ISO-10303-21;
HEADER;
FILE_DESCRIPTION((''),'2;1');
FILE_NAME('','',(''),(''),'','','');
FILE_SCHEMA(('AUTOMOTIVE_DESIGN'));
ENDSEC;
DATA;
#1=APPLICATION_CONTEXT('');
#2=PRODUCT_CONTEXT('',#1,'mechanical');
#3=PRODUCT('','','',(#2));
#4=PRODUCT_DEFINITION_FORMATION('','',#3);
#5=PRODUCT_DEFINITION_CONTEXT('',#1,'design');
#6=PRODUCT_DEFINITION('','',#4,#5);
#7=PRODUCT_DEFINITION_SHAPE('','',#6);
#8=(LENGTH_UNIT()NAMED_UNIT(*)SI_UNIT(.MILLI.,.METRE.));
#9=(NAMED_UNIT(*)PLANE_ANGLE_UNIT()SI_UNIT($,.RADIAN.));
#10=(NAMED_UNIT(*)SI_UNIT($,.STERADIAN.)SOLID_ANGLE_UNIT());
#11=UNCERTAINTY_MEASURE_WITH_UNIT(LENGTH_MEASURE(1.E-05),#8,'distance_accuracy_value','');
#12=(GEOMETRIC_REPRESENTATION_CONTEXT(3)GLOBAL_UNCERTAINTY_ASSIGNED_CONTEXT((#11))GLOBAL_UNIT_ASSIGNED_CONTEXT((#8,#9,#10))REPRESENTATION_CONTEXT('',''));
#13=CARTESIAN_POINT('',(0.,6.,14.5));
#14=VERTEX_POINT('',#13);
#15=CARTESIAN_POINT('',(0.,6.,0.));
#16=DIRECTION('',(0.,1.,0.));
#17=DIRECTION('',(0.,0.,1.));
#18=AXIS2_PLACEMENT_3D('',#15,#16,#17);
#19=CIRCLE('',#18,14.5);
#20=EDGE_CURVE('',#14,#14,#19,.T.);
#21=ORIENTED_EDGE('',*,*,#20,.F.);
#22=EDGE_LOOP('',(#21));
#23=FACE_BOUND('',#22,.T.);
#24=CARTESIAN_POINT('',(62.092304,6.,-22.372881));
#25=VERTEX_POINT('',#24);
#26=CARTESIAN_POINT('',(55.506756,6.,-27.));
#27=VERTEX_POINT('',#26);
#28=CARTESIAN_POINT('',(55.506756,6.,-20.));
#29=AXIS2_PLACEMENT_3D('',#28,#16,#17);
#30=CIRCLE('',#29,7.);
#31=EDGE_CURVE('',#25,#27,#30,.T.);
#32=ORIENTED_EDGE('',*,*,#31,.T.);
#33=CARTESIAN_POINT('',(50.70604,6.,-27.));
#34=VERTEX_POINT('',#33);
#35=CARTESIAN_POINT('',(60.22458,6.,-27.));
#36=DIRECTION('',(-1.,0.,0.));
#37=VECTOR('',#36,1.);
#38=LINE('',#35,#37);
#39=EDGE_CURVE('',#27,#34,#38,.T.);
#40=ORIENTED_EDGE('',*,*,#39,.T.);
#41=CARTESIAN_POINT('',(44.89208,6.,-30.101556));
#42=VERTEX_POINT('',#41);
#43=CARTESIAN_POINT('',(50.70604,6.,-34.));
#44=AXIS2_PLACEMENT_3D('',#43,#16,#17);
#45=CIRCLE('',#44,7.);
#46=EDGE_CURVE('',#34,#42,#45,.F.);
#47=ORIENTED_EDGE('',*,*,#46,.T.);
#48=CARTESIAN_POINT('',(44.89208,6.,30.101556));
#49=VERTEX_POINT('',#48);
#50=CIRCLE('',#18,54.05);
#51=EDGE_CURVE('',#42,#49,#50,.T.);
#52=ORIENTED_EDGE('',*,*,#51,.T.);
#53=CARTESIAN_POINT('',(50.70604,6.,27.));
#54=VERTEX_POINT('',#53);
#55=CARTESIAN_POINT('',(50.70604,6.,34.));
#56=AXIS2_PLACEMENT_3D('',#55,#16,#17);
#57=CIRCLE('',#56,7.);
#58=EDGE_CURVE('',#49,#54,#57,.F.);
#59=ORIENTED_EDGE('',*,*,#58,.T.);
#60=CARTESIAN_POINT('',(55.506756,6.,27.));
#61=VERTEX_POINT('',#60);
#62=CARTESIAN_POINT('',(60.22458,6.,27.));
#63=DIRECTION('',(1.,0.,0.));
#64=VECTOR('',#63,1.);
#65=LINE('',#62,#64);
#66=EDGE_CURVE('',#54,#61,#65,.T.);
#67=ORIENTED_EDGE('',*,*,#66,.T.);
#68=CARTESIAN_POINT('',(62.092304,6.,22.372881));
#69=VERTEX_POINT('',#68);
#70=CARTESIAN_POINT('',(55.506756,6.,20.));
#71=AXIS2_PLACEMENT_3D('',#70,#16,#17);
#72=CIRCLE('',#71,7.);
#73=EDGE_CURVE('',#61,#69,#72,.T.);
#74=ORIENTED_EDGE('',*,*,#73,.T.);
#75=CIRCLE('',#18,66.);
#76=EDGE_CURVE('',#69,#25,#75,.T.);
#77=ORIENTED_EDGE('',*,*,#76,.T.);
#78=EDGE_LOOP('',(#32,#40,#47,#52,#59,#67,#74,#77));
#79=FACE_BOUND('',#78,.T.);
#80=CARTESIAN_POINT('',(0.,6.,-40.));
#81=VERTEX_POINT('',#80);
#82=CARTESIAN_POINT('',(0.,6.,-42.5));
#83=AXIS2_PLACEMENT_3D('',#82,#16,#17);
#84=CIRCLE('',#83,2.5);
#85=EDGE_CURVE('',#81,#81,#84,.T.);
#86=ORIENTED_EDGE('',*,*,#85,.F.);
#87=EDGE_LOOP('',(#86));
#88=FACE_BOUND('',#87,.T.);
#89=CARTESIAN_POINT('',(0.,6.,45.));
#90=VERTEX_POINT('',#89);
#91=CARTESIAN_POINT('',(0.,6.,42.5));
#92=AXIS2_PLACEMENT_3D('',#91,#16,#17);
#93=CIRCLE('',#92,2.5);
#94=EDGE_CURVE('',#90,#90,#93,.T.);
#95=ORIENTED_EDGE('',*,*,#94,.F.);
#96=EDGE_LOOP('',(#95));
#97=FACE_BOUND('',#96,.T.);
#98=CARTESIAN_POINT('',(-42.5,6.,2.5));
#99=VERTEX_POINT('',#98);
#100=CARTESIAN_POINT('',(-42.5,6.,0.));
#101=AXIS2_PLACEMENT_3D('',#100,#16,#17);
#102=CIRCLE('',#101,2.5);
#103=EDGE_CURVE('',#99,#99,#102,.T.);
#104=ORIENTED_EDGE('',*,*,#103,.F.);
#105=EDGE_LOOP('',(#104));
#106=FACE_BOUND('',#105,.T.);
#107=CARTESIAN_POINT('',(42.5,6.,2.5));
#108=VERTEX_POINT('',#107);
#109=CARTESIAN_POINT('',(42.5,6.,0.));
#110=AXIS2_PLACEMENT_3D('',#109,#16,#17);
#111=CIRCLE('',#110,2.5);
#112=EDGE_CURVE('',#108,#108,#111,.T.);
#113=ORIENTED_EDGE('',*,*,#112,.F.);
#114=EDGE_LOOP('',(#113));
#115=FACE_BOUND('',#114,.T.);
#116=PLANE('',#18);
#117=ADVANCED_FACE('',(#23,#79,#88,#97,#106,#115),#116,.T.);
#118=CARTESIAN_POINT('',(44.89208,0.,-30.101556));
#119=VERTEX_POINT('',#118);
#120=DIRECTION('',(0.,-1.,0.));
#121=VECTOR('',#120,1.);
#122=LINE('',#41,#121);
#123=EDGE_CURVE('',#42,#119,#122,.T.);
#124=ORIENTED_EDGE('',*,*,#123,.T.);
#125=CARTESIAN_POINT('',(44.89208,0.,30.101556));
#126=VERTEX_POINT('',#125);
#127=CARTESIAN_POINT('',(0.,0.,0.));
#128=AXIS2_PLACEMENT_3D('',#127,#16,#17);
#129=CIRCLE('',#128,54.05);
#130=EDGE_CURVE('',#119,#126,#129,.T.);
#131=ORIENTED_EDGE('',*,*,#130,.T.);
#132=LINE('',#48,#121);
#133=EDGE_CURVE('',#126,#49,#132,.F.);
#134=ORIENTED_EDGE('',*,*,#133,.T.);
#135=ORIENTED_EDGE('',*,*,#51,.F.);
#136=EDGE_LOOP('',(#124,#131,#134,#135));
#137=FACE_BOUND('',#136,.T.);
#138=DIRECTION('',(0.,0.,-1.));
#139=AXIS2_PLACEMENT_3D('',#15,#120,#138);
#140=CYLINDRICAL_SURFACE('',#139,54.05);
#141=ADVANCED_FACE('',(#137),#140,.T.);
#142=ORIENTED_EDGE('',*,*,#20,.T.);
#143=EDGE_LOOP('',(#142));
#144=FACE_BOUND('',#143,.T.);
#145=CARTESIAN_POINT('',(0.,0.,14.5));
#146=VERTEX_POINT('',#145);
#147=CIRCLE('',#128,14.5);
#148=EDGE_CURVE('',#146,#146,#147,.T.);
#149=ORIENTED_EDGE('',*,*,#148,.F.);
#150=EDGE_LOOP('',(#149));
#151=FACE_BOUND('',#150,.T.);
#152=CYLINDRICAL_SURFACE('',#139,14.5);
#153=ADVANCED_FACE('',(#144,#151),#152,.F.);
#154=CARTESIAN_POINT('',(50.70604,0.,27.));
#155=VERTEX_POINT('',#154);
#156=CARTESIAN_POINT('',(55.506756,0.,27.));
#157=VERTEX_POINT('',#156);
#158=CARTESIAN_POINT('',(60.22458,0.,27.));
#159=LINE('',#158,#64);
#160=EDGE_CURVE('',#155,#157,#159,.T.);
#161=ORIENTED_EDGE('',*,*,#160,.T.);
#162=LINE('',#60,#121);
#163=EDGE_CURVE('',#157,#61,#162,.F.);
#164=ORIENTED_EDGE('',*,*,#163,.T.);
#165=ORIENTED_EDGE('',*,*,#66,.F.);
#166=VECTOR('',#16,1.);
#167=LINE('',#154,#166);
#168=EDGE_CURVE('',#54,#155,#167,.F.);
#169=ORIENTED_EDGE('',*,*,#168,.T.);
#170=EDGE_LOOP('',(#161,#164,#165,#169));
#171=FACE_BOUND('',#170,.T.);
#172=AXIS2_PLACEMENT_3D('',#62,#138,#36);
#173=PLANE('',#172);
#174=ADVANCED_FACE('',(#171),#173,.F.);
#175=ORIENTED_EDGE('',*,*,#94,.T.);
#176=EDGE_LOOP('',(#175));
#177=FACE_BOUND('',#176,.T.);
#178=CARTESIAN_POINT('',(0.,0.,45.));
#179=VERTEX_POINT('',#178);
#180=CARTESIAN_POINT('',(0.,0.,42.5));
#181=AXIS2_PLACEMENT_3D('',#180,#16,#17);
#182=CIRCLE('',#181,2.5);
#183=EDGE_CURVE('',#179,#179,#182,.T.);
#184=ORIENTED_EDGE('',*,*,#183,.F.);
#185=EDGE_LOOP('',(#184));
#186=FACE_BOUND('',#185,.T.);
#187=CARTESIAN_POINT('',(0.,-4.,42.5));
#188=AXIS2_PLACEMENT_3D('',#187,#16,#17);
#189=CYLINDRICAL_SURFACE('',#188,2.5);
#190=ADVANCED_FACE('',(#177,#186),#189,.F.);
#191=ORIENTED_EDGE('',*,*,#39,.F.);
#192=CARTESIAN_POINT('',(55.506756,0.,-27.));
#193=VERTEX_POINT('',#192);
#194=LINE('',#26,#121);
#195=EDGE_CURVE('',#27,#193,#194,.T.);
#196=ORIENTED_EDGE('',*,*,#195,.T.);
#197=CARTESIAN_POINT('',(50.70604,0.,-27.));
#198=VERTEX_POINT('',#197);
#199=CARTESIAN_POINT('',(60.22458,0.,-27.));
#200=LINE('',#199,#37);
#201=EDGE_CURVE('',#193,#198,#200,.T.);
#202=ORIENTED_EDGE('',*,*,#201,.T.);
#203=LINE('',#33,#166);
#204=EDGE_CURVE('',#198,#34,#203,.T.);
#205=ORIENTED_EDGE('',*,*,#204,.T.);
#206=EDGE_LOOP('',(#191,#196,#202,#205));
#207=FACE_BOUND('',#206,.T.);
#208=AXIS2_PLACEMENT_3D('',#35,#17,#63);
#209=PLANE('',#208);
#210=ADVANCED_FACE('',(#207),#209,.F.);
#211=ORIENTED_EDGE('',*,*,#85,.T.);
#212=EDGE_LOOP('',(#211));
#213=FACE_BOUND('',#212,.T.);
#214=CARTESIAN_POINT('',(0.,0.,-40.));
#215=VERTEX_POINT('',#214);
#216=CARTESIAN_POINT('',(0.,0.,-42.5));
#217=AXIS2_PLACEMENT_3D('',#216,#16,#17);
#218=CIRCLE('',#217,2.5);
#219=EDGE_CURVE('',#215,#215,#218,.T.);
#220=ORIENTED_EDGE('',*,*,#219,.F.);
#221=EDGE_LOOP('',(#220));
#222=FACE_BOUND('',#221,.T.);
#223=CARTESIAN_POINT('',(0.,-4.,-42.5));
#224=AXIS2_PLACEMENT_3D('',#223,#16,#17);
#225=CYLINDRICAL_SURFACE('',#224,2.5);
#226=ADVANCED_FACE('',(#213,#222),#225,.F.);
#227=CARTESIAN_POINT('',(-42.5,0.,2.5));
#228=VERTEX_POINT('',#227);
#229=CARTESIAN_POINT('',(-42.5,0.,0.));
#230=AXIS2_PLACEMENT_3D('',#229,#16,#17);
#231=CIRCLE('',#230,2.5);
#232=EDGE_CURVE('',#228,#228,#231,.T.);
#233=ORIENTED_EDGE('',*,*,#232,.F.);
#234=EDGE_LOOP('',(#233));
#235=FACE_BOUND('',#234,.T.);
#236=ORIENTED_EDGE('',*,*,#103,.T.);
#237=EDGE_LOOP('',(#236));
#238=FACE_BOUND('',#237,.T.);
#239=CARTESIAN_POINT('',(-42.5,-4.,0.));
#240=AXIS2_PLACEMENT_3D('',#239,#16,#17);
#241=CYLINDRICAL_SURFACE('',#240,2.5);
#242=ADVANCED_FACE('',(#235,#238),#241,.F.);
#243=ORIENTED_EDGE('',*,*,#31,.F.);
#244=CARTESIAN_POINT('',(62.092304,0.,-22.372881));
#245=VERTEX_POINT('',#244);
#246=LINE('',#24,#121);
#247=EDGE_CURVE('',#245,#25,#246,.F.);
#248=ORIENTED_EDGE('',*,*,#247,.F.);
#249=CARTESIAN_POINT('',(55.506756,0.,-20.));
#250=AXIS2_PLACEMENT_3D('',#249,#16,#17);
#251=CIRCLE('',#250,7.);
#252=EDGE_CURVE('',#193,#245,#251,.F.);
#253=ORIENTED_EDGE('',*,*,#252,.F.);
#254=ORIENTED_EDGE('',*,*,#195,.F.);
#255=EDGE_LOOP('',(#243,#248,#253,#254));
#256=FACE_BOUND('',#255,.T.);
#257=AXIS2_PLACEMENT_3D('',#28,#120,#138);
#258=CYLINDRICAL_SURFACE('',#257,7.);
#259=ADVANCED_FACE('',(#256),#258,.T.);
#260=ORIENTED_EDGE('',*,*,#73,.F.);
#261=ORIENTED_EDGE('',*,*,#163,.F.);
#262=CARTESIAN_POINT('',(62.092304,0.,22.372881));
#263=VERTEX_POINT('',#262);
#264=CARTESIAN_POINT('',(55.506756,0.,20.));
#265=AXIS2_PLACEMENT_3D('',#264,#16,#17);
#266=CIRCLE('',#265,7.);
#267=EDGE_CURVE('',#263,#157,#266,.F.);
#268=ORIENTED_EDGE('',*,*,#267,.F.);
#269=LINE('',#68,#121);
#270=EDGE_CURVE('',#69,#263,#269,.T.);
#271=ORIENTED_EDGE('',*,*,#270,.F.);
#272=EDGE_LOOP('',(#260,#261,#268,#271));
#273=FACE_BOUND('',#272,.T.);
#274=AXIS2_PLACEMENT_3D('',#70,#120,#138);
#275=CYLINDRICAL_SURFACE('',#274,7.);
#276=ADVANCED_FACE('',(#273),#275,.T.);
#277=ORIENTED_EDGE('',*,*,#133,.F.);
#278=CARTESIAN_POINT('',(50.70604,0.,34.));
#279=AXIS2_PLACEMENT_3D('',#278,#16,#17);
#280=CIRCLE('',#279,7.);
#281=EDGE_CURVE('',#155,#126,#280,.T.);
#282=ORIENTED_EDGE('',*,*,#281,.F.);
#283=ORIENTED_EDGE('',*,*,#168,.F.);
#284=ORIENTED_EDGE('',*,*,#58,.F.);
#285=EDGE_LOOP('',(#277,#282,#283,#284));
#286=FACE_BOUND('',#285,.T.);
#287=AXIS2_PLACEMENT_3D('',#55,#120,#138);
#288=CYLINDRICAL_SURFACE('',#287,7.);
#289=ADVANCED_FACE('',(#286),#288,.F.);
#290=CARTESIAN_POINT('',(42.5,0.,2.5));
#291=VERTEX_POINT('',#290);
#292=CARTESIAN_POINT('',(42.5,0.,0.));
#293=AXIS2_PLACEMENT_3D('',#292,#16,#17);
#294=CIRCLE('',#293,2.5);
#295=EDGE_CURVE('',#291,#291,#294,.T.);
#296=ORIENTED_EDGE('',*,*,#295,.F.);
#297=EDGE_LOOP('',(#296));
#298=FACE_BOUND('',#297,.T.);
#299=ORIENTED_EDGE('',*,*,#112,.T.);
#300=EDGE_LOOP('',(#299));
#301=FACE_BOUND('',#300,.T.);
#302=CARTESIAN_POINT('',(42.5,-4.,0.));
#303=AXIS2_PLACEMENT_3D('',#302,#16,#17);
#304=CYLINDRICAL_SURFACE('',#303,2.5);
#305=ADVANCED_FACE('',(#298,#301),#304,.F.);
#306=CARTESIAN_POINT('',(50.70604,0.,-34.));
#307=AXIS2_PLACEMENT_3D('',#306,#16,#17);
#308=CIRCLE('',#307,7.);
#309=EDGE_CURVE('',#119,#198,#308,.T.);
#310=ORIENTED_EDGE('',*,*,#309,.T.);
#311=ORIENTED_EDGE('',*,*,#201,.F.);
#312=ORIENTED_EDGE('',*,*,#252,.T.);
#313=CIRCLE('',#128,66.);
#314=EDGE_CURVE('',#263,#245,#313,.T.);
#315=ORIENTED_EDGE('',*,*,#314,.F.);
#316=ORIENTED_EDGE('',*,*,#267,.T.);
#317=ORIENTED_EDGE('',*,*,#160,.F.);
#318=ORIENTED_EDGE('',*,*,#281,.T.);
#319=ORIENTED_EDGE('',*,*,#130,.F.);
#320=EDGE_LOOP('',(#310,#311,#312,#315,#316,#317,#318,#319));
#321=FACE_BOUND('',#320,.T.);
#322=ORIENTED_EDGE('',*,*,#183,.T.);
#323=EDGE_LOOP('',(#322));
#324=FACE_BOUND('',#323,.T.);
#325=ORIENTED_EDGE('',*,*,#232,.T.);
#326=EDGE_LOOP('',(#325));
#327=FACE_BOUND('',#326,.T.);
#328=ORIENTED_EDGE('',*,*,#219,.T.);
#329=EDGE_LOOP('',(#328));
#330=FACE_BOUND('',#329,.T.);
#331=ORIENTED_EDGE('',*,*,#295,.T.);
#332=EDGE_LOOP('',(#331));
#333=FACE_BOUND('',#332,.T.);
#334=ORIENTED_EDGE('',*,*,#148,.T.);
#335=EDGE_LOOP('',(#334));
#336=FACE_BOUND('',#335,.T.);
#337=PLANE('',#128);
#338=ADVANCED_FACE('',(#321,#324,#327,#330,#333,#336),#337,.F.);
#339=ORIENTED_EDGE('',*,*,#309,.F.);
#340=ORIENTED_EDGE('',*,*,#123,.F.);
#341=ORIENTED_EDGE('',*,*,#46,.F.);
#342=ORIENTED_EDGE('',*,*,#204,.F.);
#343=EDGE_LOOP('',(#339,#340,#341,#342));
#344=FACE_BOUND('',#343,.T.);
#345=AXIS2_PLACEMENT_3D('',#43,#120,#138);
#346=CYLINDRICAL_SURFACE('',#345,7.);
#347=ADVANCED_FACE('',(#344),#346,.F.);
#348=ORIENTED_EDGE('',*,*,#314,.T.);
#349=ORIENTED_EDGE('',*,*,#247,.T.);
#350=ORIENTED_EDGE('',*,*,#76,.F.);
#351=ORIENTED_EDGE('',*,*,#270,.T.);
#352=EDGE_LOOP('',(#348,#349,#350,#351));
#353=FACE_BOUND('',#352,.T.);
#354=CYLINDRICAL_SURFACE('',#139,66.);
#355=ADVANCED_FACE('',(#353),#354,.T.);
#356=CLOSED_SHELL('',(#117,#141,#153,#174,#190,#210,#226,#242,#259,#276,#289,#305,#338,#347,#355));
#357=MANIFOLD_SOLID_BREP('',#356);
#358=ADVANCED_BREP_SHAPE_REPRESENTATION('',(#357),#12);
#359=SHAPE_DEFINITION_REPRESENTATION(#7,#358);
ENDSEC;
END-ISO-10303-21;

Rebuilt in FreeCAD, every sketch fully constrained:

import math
import FreeCAD as App
import Part
import Sketcher
from FreeCAD import Vector
Q = App.Units.Quantity


def edges_at(feature, points):
    """Names of the edges that pass closest to the given points."""
    edges = feature.Shape.Edges
    near = lambda p: min(range(len(edges)), key=lambda i: edges[i].distToShape(Part.Vertex(*p))[0])
    return sorted({f"Edge{near(p) + 1}" for p in points})

doc = App.newDocument("Part")
body = doc.addObject("PartDesign::Body", "Body")

sketch1 = body.newObject("Sketcher::SketchObject", "Sketch")
sketch1.AttachmentSupport = (doc.getObject("XZ_Plane"), [""])
sketch1.MapMode = "FlatFace"
sketch1.addGeometry([
    Part.LineSegment(Vector(47, 27, 0), Vector(60, 27, 0)),
    Part.ArcOfCircle(Part.Circle(Vector(0, 0, 0), Vector(0, 0, 1), 66), math.radians(-24), math.radians(24)),
    Part.LineSegment(Vector(60, -27, 0), Vector(47, -27, 0)),
    Part.ArcOfCircle(Part.Circle(Vector(0, 0, 0), Vector(0, 0, 1), 54), math.radians(30), math.radians(330)),
    Part.Circle(Vector(0, 0, 0), Vector(0, 0, 1), 14),
], False)
sketch1.addConstraint([
    Sketcher.Constraint("Coincident", 0, 2, 1, 2),
    Sketcher.Constraint("Coincident", 1, 1, 2, 1),
    Sketcher.Constraint("Coincident", 2, 2, 3, 2),
    Sketcher.Constraint("Coincident", 3, 1, 0, 1),
    Sketcher.Constraint("Horizontal", 0),
    Sketcher.Constraint("Horizontal", 2),
    Sketcher.Constraint("Coincident", 1, 3, -1, 1),
    Sketcher.Constraint("Coincident", 3, 3, -1, 1),
    Sketcher.Constraint("Coincident", 4, 3, -1, 1),
    Sketcher.Constraint("Vertical", 0, 2, 1, 1),
    Sketcher.Constraint("Diameter", 4, Q("29 mm")),
    Sketcher.Constraint("Radius", 1, Q("66 mm")),
    Sketcher.Constraint("Radius", 3, Q("54.05 mm")),
    Sketcher.Constraint("DistanceY", -1, 1, 0, 2, Q("27 mm")),
])
pad1 = body.newObject("PartDesign::Pad", "Pad")
pad1.Profile = sketch1
pad1.Length = 6
pad1.Reversed = True

sketch2 = body.newObject("Sketcher::SketchObject", "Sketch001")
sketch2.AttachmentSupport = (doc.getObject("XZ_Plane"), [""])
sketch2.MapMode = "FlatFace"
sketch2.AttachmentOffset = App.Placement(Vector(0, 0, -6), App.Rotation())
sketch2.addGeometry([
    Part.Circle(Vector(0, -42.5, 0), Vector(0, 0, 1), 2.5),
    Part.Circle(Vector(0, 42.5, 0), Vector(0, 0, 1), 2.5),
    Part.Circle(Vector(-42.5, 0, 0), Vector(0, 0, 1), 2.5),
    Part.Circle(Vector(42.5, 0, 0), Vector(0, 0, 1), 2.5),
], False)
sketch2.addConstraint([
    Sketcher.Constraint("Equal", 0, 1),
    Sketcher.Constraint("Equal", 1, 2),
    Sketcher.Constraint("Equal", 2, 3),
    Sketcher.Constraint("Symmetric", 0, 3, 1, 3, -1, 1),
    Sketcher.Constraint("Symmetric", 2, 3, 3, 3, -1, 1),
    Sketcher.Constraint("PointOnObject", 0, 3, -2),
    Sketcher.Constraint("PointOnObject", 2, 3, -1),
    Sketcher.Constraint("Diameter", 0, Q("5 mm")),
    Sketcher.Constraint("DistanceY", 0, 3, 1, 3, Q("85 mm")),
    Sketcher.Constraint("DistanceX", 2, 3, 3, 3, Q("85 mm")),
])
pocket1 = body.newObject("PartDesign::Pocket", "Pocket")
pocket1.Profile = sketch2
pocket1.Length = 10
pocket1.Reversed = True
doc.recompute()

fillet = body.newObject("PartDesign::Fillet", "Fillet")
fillet.Base = (pocket1, edges_at(pocket1, [(60.225, 3, -27), (60.225, 3, 27)]))
fillet.Radius = 7
doc.recompute()

fillet2 = body.newObject("PartDesign::Fillet", "Fillet001")
fillet2.Base = (fillet, edges_at(fillet, [(46.823, 3, -27), (46.823, 3, 27)]))
fillet2.Radius = 7

doc.recompute()
